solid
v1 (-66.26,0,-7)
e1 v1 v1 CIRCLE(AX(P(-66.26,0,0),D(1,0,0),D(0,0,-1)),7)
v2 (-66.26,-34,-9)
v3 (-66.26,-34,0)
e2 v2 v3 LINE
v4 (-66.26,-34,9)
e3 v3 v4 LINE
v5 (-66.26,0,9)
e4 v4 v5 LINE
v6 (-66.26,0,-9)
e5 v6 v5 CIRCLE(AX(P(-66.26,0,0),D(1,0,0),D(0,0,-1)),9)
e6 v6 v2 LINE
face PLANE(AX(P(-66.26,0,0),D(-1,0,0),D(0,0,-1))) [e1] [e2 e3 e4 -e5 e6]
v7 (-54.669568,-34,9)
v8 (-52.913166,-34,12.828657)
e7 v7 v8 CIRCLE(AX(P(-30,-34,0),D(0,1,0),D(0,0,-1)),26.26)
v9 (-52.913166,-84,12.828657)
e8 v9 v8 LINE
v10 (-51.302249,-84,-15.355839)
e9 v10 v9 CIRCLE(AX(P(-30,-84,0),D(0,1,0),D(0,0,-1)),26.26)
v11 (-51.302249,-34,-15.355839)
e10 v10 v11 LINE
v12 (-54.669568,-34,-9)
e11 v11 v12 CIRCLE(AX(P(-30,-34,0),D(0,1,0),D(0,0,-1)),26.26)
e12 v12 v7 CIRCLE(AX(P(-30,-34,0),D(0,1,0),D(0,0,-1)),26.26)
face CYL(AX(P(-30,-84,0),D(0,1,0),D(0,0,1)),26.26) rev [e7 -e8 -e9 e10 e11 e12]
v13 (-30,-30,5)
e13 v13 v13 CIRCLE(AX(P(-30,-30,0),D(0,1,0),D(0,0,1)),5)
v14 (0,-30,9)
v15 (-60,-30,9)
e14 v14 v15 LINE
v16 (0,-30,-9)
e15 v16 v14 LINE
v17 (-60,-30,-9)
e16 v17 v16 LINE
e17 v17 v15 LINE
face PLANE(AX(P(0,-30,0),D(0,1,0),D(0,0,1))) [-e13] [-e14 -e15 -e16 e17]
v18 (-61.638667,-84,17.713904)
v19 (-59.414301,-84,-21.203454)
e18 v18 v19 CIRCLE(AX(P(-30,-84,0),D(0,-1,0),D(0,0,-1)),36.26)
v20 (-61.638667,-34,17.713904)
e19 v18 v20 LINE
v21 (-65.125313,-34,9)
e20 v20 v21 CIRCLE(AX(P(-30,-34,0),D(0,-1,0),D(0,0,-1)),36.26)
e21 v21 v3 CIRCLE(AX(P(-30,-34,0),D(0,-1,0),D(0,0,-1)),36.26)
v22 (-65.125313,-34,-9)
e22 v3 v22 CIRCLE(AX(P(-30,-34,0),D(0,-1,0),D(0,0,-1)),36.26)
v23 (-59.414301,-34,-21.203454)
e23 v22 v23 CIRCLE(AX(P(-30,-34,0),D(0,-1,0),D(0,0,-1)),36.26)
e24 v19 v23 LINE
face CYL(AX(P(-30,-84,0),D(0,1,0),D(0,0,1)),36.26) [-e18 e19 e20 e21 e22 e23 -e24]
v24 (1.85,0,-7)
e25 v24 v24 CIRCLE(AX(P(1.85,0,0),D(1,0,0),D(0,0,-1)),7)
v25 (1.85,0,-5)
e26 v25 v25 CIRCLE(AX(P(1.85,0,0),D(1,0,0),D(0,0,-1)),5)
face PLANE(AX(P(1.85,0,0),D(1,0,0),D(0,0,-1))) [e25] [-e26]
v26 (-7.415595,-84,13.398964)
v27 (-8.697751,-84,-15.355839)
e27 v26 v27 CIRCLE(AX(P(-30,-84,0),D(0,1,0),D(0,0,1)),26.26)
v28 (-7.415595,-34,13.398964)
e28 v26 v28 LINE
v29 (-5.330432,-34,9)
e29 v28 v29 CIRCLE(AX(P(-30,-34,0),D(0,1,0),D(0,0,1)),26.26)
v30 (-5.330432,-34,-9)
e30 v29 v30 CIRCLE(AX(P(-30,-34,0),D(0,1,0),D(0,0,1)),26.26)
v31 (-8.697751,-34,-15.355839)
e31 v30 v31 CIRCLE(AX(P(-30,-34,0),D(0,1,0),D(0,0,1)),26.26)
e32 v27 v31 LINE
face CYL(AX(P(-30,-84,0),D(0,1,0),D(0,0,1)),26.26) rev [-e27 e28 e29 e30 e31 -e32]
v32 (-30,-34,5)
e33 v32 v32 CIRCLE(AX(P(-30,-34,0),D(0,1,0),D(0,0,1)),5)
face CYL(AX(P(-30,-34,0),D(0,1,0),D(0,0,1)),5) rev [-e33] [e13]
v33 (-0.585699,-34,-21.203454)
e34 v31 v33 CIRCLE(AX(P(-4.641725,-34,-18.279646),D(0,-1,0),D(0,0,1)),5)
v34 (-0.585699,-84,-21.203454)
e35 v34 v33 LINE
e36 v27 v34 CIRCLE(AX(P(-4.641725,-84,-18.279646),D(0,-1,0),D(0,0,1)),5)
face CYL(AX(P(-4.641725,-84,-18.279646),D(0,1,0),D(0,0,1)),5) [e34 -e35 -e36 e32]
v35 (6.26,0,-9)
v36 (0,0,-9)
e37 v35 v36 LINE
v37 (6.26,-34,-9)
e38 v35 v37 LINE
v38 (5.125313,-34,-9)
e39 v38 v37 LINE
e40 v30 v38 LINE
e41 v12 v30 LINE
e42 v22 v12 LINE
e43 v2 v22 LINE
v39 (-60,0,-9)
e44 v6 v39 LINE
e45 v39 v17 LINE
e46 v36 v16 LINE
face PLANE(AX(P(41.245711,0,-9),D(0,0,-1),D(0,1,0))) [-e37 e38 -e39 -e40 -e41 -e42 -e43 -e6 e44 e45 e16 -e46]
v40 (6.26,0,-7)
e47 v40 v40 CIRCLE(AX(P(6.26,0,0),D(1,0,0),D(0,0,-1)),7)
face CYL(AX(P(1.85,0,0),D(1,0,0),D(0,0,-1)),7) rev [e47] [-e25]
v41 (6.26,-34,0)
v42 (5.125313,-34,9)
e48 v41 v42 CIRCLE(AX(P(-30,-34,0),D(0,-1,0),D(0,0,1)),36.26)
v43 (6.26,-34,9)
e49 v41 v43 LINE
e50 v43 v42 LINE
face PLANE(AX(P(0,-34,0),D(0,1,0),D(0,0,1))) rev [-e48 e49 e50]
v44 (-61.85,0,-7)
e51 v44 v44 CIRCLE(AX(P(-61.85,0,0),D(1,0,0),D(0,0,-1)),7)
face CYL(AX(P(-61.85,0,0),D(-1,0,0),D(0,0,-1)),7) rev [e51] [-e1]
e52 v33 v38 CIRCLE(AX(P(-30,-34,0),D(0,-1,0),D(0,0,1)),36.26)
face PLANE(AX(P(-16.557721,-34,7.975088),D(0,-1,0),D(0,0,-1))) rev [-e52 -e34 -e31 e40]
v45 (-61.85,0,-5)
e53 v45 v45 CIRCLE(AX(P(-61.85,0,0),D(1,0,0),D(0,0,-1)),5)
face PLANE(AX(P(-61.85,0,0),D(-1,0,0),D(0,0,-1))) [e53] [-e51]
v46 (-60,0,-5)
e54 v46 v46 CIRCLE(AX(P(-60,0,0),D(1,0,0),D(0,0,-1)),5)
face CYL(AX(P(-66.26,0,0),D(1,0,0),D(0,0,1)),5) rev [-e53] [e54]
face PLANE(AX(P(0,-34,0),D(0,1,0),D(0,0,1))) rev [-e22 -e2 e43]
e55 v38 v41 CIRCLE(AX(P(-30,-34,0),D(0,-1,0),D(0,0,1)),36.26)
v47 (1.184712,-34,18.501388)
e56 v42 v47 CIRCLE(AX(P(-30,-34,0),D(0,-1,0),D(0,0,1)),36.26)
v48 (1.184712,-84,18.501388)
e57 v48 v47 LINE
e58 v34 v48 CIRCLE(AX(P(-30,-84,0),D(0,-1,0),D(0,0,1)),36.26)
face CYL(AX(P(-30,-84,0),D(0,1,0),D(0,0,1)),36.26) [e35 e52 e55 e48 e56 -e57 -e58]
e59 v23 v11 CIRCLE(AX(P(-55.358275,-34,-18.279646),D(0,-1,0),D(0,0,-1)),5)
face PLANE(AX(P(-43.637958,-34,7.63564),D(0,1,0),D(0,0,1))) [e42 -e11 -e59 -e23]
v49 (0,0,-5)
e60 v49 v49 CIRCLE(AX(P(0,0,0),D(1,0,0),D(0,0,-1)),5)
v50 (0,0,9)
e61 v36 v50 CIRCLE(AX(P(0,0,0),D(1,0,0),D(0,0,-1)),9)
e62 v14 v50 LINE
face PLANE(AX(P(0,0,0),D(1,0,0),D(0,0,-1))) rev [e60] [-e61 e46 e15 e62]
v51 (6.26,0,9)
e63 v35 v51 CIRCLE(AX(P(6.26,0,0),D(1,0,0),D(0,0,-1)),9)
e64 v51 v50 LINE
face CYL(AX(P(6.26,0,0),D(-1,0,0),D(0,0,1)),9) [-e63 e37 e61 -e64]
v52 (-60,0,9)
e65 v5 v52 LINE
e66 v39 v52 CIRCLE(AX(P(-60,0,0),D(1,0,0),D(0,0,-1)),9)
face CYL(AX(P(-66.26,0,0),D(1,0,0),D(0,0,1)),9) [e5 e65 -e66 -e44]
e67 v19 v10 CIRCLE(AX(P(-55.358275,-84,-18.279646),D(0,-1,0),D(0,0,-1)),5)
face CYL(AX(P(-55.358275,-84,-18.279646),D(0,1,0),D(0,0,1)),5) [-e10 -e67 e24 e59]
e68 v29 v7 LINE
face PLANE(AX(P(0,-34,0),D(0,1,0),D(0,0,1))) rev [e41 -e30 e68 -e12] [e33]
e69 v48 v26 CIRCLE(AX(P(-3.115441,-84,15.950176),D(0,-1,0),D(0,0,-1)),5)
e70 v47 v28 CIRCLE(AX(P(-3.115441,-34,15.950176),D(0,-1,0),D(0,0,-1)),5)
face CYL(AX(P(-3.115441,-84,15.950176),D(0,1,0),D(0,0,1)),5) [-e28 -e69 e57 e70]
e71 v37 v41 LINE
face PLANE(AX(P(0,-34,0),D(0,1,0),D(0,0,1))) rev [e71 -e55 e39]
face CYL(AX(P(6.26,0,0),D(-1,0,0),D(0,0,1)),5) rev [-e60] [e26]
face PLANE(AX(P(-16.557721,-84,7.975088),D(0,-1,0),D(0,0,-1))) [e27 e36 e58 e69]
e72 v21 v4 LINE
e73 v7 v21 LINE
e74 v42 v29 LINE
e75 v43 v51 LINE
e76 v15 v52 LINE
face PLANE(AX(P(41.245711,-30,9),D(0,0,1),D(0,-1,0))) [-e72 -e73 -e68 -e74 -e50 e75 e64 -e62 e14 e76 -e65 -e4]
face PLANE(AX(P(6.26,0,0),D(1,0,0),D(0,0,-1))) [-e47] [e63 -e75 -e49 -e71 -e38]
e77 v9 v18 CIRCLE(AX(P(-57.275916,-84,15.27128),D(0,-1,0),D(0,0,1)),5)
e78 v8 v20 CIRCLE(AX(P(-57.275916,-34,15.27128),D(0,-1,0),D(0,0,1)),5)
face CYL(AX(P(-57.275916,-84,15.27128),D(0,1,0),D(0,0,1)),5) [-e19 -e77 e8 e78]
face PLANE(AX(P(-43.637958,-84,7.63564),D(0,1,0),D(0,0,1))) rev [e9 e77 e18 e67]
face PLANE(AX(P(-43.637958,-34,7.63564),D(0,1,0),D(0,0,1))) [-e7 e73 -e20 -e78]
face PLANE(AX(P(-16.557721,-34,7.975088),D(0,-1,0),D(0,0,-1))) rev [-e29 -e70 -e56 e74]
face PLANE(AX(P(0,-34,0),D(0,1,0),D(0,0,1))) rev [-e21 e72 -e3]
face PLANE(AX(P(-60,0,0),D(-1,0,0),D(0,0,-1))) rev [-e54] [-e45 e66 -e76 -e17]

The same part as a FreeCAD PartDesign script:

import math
import FreeCAD as App
import Part
import Sketcher

V = App.Vector

doc = App.newDocument("Part")
body = doc.addObject("PartDesign::Body", "Body")

# Sketch on YZ plane
sketch1 = body.newObject("Sketcher::SketchObject", "Sketch")
sketch1.AttachmentSupport = (doc.getObject("YZ_Plane"), [""])
sketch1.MapMode = "FlatFace"
sketch1.addGeometry([
    Part.Circle(V(0, 0, 0), V(0, 0, 1), 9),
    Part.Circle(V(0, 0, 0), V(0, 0, 1), 5),
], False)
sketch1.addConstraint([
    Sketcher.Constraint("Coincident", 0, 3, -1, 1),
    Sketcher.Constraint("Coincident", 1, 3, -1, 1),
    Sketcher.Constraint("Diameter", 0, 18.0),
    Sketcher.Constraint("Diameter", 1, 10.0),
])
pad1 = body.newObject("PartDesign::Pad", "Pad")
pad1.Profile = sketch1
pad1.Length = 6.26

# Sketch on YZ plane
sketch2 = body.newObject("Sketcher::SketchObject", "Sketch001")
sketch2.AttachmentSupport = (doc.getObject("YZ_Plane"), [""])
sketch2.MapMode = "FlatFace"
sketch2.addGeometry([
    Part.LineSegment(V(0, -9, 0), V(-30, -9, 0)),  # 0
    Part.LineSegment(V(-30, -9, 0), V(-30, 9, 0)),  # 1
    Part.LineSegment(V(-30, 9, 0), V(0, 9, 0)),  # 2
    Part.LineSegment(V(0, 9, 0), V(0, 5, 0)),  # 3
    Part.ArcOfCircle(Part.Circle(V(0, 0, 0), V(0, 0, 1), 5), math.radians(90), math.radians(270)),  # 4
    Part.LineSegment(V(0, -5, 0), V(0, -9, 0)),  # 5
], False)
sketch2.addConstraint([
    Sketcher.Constraint("Coincident", 0, 2, 1, 1),
    Sketcher.Constraint("Coincident", 1, 2, 2, 1),
    Sketcher.Constraint("Coincident", 2, 2, 3, 1),
    Sketcher.Constraint("Coincident", 3, 2, 4, 1),
    Sketcher.Constraint("Coincident", 4, 2, 5, 1),
    Sketcher.Constraint("Coincident", 5, 2, 0, 1),
    Sketcher.Constraint("Horizontal", 0),
    Sketcher.Constraint("Vertical", 1),
    Sketcher.Constraint("Horizontal", 2),
    Sketcher.Constraint("Vertical", 3),
    Sketcher.Constraint("Vertical", 5),
    Sketcher.Constraint("Coincident", 4, 3, -1, 1),
    Sketcher.Constraint("Symmetric", 2, 2, 5, 2, -1, 1),
    Sketcher.Constraint("PointOnObject", 2, 2, -2),
    Sketcher.Constraint("Radius", 4, 5.0),
    Sketcher.Constraint("DistanceX", 0, 2, 0, 1, 30.0),
    Sketcher.Constraint("DistanceY", 1, 1, 1, 2, 18.0),
])
pad2 = body.newObject("PartDesign::Pad", "Pad001")
pad2.Profile = sketch2
pad2.Length = 6.26

# Sketch on YZ plane
sketch3 = body.newObject("Sketcher::SketchObject", "Sketch002")
sketch3.AttachmentSupport = (doc.getObject("YZ_Plane"), [""])
sketch3.MapMode = "FlatFace"
sketch3.AttachmentOffset = App.Placement(V(0, 0, 6.26), App.Rotation())
sketch3.addGeometry(Part.Circle(V(0, 0, 0), V(0, 0, 1), 7), False)
sketch3.addConstraint([
    Sketcher.Constraint("Coincident", 0, 3, -1, 1),
    Sketcher.Constraint("Diameter", 0, 14.0),
])
pocket1 = body.newObject("PartDesign::Pocket", "Pocket")
pocket1.Profile = sketch3
pocket1.Length = 4.41

# Sketch on XZ plane
sketch4 = body.newObject("Sketcher::SketchObject", "Sketch003")
sketch4.AttachmentSupport = (doc.getObject("XZ_Plane"), [""])
sketch4.MapMode = "FlatFace"
sketch4.AttachmentOffset = App.Placement(V(0, 0, 30), App.Rotation())
sketch4.addGeometry([
    Part.LineSegment(V(-30, 9, 0), V(-30, -9, 0)),
    Part.LineSegment(V(-30, -9, 0), V(6, -9, 0)),
    Part.LineSegment(V(6, -9, 0), V(6, 9, 0)),
    Part.LineSegment(V(6, 9, 0), V(-30, 9, 0)),
], False)
sketch4.addConstraint([
    Sketcher.Constraint("Coincident", 0, 2, 1, 1),
    Sketcher.Constraint("Coincident", 1, 2, 2, 1),
    Sketcher.Constraint("Coincident", 2, 2, 3, 1),
    Sketcher.Constraint("Coincident", 3, 2, 0, 1),
    Sketcher.Constraint("Vertical", 0),
    Sketcher.Constraint("Horizontal", 1),
    Sketcher.Constraint("Vertical", 2),
    Sketcher.Constraint("Horizontal", 3),
    Sketcher.Constraint("DistanceY", 0, 2, 0, 1, 18.0),
    Sketcher.Constraint("DistanceX", 0, 2, -1, 1, 30.0),
    Sketcher.Constraint("DistanceY", 0, 2, -1, 1, 9.0),
    Sketcher.Constraint("DistanceX", 1, 1, 1, 2, 36.26),
])
pad3 = body.newObject("PartDesign::Pad", "Pad002")
pad3.Profile = sketch4
pad3.Length = 4
body2 = doc.addObject("PartDesign::Body", "Body001")
doc.recompute()

body2.BaseFeature = body
doc.recompute()

mirroring = doc.addObject("Part::Mirroring", "Mirroring")
mirroring.Source = body
mirroring.Base = V(-30, -34, 9)
mirroring.Normal = V(1, 0, 0)
body3 = doc.addObject("PartDesign::Body", "Body002")
body3.BaseFeature = mirroring
boolean = body2.newObject("PartDesign::Boolean", "Boolean")
boolean.Type = "Fuse"
boolean.addObjects([body3])
doc.recompute()

# Sketch on XZ plane
sketch5 = body2.newObject("Sketcher::SketchObject", "Sketch004")
sketch5.AttachmentSupport = (doc.getObject("XZ_Plane001"), [""])
sketch5.MapMode = "FlatFace"
sketch5.AttachmentOffset = App.Placement(V(0, 0, 30), App.Rotation())
sketch5.addGeometry(Part.Circle(V(-30, 0, 0), V(0, 0, 1), 5), False)
sketch5.addConstraint([
    Sketcher.Constraint("PointOnObject", 0, 3, -1),
    Sketcher.Constraint("Diameter", 0, 10.0),
    Sketcher.Constraint("DistanceX", 0, 3, -1, 1, 30.0),
])
pocket2 = body2.newObject("PartDesign::Pocket", "Pocket001")
pocket2.Profile = sketch5
pocket2.Type = "ThroughAll"
pocket2.Reversed = True

# Sketch on XZ plane
sketch6 = body2.newObject("Sketcher::SketchObject", "Sketch005")
sketch6.AttachmentSupport = (doc.getObject("XZ_Plane001"), [""])
sketch6.MapMode = "FlatFace"
sketch6.AttachmentOffset = App.Placement(V(0, 0, 34), App.Rotation())
sketch6.addGeometry([
    Part.ArcOfCircle(Part.Circle(V(-30, 0, 0), V(0, 0, 1), 36), math.radians(-36), math.radians(31)),  # 0
    Part.ArcOfCircle(Part.Circle(V(-3, 16, 0), V(0, 0, 1), 5), math.radians(31), math.radians(211)),  # 1
    Part.ArcOfCircle(Part.Circle(V(-30, 0, 0), V(0, 0, 1), 26), math.radians(-36), math.radians(31)),  # 2
    Part.ArcOfCircle(Part.Circle(V(-5, -18, 0), V(0, 0, 1), 5), math.radians(144), math.radians(324)),  # 3
    Part.ArcOfCircle(Part.Circle(V(-30, 0, 0), V(0, 0, 1), 36), math.radians(151), math.radians(216)),  # 4
    Part.ArcOfCircle(Part.Circle(V(-55, -18, 0), V(0, 0, 1), 5), math.radians(-144), math.radians(36)),  # 5
    Part.ArcOfCircle(Part.Circle(V(-30, 0, 0), V(0, 0, 1), 26), math.radians(151), math.radians(216)),  # 6
    Part.ArcOfCircle(Part.Circle(V(-57, 15, 0), V(0, 0, 1), 5), math.radians(-29), math.radians(151)),  # 7
], False)
sketch6.addConstraint([
    Sketcher.Constraint("Tangent", 0, 2, 1, 1),
    Sketcher.Constraint("Tangent", 1, 2, 2, 2),
    Sketcher.Constraint("Tangent", 2, 1, 3, 1),
    Sketcher.Constraint("Tangent", 3, 2, 0, 1),
    Sketcher.Constraint("Tangent", 4, 2, 5, 1),
    Sketcher.Constraint("Tangent", 5, 2, 6, 2),
    Sketcher.Constraint("Tangent", 6, 1, 7, 1),
    Sketcher.Constraint("Tangent", 7, 2, 4, 1),
    Sketcher.Constraint("Coincident", 2, 3, 0, 3),
    Sketcher.Constraint("Coincident", 4, 3, 0, 3),
    Sketcher.Constraint("Coincident", 6, 3, 0, 3),
    Sketcher.Constraint("Equal", 0, 4),
    Sketcher.Constraint("Equal", 3, 5),
    Sketcher.Constraint("PointOnObject", 0, 3, -1),
    Sketcher.Constraint("Horizontal", 3, 3, 5, 3),
    Sketcher.Constraint("Radius", 1, 5.0),
    Sketcher.Constraint("Radius", 0, 36.26),
    Sketcher.Constraint("DistanceX", 0, 3, -1, 1, 30.0),
    Sketcher.Constraint("DistanceX", 3, 2, -1, 1, 0.585699),
    Sketcher.Constraint("DistanceX", 7, 2, 6, 1, 8.725501),
    Sketcher.Constraint("DistanceX", 1, 3, -1, 1, 3.115441),
])
pad4 = body2.newObject("PartDesign::Pad", "Pad003")
pad4.Profile = sketch6
pad4.Length = 50
mirroring.Visibility = False

doc.recompute()
